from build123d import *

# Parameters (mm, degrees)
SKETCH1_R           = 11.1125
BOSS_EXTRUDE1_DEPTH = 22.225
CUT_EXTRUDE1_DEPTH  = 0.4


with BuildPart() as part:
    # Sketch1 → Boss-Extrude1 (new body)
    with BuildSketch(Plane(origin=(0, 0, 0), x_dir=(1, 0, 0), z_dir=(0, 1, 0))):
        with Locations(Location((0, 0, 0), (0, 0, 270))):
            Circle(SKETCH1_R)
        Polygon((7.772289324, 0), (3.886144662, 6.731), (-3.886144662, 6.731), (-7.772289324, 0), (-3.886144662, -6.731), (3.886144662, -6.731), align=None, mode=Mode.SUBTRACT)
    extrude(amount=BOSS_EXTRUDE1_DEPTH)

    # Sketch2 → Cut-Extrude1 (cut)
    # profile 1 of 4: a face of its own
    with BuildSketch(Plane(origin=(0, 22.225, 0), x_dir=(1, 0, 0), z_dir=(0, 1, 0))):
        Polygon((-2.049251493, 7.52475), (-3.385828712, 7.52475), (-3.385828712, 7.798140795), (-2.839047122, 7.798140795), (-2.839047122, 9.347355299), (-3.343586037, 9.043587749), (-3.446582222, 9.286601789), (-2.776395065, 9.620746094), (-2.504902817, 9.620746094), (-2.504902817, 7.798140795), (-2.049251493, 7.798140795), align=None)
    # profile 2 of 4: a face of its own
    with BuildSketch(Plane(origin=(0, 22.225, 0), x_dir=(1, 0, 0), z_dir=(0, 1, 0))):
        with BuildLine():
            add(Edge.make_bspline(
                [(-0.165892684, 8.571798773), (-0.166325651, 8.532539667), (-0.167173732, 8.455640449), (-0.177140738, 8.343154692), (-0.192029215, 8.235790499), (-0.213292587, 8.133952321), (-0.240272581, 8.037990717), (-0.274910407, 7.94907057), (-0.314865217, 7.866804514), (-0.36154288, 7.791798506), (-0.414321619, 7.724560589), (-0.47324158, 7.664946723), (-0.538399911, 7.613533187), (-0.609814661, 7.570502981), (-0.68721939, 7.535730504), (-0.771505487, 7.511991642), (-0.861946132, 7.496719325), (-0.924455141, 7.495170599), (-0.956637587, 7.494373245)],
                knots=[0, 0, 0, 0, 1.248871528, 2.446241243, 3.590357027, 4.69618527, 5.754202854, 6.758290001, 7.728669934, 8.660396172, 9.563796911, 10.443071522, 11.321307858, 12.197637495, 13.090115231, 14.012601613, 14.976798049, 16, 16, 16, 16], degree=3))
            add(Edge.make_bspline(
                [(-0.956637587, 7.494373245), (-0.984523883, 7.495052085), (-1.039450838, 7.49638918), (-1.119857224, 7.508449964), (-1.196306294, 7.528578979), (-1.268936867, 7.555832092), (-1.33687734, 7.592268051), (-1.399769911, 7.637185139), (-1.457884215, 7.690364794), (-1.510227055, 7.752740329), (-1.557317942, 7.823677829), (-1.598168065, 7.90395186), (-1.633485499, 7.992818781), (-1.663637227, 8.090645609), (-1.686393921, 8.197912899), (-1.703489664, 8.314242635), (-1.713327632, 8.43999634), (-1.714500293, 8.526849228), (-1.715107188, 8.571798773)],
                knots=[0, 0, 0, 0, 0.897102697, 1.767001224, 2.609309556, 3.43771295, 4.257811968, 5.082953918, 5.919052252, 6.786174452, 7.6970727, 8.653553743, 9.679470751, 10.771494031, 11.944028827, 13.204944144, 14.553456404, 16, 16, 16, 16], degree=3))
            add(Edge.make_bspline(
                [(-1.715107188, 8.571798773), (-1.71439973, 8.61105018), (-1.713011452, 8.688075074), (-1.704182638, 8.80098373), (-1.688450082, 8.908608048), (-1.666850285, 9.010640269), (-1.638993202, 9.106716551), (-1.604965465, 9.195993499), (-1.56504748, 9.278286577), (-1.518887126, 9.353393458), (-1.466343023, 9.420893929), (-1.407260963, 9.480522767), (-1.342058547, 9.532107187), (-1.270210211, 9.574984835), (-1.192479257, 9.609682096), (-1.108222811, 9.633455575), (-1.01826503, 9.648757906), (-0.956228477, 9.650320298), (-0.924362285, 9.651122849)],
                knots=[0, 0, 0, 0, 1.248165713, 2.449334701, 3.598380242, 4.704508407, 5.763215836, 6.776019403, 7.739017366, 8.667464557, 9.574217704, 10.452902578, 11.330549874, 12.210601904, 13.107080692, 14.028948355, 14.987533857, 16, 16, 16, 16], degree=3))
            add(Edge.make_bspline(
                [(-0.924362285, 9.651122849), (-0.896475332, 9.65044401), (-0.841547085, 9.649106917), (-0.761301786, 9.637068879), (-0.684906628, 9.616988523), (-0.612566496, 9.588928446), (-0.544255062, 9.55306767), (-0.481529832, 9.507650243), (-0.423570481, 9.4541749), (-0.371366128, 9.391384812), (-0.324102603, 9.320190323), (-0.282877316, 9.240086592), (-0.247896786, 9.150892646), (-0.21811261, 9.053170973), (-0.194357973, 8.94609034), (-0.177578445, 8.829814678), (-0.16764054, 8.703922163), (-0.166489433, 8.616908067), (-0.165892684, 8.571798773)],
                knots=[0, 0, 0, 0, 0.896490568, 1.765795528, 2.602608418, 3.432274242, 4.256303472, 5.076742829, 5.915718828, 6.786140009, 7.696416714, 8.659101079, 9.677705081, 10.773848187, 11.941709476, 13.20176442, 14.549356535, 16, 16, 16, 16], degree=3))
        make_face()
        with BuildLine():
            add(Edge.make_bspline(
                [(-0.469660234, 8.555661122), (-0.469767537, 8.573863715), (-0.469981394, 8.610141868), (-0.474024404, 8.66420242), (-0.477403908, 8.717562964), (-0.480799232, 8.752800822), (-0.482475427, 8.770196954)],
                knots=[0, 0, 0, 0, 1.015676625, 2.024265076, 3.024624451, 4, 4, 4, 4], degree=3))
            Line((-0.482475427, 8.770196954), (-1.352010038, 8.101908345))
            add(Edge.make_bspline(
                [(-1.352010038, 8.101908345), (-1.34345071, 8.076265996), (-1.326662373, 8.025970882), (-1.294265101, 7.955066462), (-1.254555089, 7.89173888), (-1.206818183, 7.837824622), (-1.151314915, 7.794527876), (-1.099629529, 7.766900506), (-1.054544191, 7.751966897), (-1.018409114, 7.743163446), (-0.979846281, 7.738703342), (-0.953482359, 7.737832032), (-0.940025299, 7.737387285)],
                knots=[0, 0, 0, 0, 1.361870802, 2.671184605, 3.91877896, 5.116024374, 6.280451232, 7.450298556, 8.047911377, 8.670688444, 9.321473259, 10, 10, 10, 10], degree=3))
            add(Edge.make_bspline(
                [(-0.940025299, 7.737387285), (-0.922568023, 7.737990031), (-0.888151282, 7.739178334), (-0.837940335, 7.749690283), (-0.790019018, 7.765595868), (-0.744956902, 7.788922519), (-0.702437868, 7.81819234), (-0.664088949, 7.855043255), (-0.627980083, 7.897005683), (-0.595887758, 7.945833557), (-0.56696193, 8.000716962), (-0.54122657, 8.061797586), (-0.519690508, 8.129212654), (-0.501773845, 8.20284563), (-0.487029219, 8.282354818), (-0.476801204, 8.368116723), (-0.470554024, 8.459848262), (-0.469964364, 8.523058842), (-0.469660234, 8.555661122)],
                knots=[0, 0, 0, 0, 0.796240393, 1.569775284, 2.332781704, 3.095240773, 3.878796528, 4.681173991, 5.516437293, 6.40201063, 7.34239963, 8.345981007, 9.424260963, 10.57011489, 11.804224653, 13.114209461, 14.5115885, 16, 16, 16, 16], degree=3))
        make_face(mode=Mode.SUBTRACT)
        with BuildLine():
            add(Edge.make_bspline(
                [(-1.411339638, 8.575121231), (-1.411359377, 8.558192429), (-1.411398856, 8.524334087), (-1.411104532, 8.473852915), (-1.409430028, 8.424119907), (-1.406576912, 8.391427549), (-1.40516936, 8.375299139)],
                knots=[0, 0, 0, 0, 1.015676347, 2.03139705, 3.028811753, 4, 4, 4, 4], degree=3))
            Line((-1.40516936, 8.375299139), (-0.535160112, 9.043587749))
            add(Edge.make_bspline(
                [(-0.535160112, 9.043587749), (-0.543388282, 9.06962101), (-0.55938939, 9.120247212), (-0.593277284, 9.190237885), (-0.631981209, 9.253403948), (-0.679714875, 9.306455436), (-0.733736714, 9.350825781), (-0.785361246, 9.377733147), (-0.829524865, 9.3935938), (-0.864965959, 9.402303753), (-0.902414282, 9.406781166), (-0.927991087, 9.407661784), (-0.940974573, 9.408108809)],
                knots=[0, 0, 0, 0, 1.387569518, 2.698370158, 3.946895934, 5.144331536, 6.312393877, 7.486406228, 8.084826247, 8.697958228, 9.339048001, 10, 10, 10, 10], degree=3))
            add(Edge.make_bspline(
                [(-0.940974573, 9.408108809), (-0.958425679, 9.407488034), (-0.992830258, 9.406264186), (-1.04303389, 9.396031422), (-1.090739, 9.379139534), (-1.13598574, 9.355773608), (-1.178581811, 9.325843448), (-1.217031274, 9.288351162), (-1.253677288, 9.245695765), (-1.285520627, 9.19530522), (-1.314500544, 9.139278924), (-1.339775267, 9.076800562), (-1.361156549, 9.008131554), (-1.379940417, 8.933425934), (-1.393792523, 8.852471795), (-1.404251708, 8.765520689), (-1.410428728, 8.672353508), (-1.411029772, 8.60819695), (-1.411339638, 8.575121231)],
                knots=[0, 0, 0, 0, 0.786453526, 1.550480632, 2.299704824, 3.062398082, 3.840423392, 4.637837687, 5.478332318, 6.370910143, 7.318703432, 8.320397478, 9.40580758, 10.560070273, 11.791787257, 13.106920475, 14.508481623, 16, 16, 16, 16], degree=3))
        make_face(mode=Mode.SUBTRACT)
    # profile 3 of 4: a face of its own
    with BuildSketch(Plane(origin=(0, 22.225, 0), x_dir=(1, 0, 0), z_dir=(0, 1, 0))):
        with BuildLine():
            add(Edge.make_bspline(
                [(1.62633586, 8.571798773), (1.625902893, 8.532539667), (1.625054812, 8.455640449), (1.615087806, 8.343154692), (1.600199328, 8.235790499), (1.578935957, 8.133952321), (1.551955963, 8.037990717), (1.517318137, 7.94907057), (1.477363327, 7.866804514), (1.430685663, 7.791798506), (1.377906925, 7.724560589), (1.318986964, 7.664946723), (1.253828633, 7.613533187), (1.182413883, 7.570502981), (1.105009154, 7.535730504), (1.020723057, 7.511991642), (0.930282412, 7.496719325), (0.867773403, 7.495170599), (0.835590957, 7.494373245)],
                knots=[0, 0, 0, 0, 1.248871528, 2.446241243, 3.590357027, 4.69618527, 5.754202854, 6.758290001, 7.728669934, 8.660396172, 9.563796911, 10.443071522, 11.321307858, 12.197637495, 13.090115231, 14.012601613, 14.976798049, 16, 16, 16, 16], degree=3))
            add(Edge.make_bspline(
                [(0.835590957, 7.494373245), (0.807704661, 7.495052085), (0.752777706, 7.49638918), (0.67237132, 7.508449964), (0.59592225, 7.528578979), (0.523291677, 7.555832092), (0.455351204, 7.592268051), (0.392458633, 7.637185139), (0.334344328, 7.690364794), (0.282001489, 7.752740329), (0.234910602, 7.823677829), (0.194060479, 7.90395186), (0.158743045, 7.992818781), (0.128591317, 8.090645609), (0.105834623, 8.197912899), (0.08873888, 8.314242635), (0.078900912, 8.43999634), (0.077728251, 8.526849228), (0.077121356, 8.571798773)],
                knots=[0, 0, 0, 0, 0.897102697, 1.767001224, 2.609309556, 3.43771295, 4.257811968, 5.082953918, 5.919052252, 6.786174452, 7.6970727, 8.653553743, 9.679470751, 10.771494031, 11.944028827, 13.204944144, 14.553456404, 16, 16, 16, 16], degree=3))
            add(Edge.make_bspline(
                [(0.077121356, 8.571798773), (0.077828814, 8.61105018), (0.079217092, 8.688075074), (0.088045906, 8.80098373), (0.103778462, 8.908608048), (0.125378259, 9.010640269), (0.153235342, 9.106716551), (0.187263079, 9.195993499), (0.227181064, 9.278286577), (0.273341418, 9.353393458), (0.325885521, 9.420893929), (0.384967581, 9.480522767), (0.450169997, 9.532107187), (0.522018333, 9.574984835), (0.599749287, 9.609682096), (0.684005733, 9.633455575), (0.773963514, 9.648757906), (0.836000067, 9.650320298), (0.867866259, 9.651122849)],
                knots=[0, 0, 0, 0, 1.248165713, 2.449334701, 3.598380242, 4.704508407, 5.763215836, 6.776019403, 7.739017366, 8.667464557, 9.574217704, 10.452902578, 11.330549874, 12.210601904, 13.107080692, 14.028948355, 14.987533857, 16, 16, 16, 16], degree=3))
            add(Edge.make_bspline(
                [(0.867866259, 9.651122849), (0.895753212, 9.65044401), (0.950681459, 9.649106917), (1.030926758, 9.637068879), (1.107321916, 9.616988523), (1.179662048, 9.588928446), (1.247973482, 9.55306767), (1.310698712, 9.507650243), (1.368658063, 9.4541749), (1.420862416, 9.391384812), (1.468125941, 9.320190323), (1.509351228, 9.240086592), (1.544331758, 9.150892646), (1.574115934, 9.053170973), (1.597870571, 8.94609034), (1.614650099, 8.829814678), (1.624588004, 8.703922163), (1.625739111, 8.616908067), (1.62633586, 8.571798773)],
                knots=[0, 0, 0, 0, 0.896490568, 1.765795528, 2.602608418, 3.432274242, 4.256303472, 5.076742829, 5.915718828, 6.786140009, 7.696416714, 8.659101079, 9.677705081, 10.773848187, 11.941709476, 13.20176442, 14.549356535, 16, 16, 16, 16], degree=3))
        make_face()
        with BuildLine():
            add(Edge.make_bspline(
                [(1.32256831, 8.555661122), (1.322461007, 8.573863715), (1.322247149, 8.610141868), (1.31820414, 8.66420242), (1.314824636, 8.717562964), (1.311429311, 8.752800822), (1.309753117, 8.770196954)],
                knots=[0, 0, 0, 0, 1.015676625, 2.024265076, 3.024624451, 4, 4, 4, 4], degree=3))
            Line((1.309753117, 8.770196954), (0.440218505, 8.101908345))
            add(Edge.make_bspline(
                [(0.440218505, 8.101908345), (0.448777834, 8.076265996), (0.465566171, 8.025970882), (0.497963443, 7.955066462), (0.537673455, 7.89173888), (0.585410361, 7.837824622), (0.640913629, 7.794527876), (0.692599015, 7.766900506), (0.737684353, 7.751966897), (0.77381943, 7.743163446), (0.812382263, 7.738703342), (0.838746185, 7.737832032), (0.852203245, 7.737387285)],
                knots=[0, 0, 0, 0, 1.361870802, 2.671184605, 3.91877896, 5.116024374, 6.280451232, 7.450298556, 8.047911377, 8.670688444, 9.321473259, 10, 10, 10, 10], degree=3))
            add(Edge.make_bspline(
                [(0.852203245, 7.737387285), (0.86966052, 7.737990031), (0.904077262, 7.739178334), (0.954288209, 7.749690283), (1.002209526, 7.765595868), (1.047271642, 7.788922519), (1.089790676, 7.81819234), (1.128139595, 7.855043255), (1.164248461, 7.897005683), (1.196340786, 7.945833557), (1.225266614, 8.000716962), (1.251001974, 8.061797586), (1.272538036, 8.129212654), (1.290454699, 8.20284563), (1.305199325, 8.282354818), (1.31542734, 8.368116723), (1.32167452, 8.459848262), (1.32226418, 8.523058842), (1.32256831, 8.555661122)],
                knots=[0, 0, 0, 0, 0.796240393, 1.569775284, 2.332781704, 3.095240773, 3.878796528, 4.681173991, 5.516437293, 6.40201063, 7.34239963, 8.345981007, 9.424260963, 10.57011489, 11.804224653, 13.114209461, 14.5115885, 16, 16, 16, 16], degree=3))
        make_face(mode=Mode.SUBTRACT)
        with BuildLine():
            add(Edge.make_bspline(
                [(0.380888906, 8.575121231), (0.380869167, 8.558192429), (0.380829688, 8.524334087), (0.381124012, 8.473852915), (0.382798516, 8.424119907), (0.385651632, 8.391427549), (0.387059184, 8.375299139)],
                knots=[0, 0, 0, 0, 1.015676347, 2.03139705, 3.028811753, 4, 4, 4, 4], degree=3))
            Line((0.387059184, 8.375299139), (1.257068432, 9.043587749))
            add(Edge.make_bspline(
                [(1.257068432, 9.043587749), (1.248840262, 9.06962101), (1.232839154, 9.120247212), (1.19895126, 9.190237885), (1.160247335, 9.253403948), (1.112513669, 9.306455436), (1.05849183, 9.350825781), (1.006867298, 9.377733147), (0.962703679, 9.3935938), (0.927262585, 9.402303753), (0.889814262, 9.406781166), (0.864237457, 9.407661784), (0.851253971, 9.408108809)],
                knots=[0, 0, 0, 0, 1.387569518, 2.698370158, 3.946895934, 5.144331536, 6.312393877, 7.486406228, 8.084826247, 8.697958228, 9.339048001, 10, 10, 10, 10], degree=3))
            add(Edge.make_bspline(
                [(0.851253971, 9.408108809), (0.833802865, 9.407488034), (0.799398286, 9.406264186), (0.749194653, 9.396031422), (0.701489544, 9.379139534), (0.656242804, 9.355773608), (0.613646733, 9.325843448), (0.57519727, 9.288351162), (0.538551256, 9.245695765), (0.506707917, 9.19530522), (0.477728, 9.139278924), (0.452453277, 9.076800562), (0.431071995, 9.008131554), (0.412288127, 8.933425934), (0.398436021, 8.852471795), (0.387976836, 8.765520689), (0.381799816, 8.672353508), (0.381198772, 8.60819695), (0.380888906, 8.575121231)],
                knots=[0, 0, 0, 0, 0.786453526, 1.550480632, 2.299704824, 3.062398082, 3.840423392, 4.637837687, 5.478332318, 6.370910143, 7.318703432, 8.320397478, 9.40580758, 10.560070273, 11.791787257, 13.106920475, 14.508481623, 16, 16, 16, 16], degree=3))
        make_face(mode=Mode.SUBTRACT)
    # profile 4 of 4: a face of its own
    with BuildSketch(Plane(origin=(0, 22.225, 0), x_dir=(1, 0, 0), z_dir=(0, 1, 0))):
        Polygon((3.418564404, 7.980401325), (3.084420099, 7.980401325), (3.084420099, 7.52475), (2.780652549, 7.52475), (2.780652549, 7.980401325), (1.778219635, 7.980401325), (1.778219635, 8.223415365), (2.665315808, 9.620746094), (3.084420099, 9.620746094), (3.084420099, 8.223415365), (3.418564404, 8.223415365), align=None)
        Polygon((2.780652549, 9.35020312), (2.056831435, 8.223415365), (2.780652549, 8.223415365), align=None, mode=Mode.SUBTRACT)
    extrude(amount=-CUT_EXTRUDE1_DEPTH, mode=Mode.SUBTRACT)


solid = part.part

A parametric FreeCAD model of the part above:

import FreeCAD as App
import Part
import Sketcher

V = App.Vector
Q = App.Units.Quantity


def add_polygon(sketch, points):
    """Adds a closed chain of lines whose ends are joined by coincident constraints."""
    first, n = sketch.GeometryCount, len(points)
    for a, b in zip(points, points[1:] + points[:1]):
        sketch.addGeometry(Part.LineSegment(App.Vector(*a, 0), App.Vector(*b, 0)), False)
    for i in range(n):
        sketch.addConstraint(Sketcher.Constraint("Coincident", first + i, 2, first + (i + 1) % n, 1))

doc = App.newDocument("Part")
body = doc.addObject("PartDesign::Body", "Body")

sketch1 = doc.addObject("Sketcher::SketchObject", "Sketch")
body.addObject(sketch1)
sketch1.AttachmentSupport = (doc.XZ_Plane, [""])
sketch1.MapMode = "FlatFace"
sketch1.addGeometry(Part.Circle(V(0, 0, 0), V(0, 0, 1), 11), False)
add_polygon(sketch1, [(4, -7), (8, 0), (4, 7), (-4, 7), (-8, 0), (-4, -7)])
sketch1.addConstraint(Sketcher.Constraint("Horizontal", 3))
sketch1.addConstraint(Sketcher.Constraint("Horizontal", 6))
sketch1.addConstraint(Sketcher.Constraint("Coincident", 0, 3, -1, 1))
sketch1.addConstraint(Sketcher.Constraint("Symmetric", 1, 2, 4, 2, -1, 1))
sketch1.addConstraint(Sketcher.Constraint("Symmetric", 2, 2, 5, 2, -1, 1))
sketch1.addConstraint(Sketcher.Constraint("PointOnObject", 1, 2, -1))
sketch1.addConstraint(Sketcher.Constraint("Parallel", 1, 4))
sketch1.addConstraint(Sketcher.Constraint("Vertical", 3, 2, 5, 2))
sketch1.addConstraint(Sketcher.Constraint("Angle", 1, Q("60 deg")))
sketch1.addConstraint(Sketcher.Constraint("Diameter", 0, 22.225))
sketch1.addConstraint(Sketcher.Constraint("DistanceY", -1, 1, 2, 2, 6.731))
sketch1.addConstraint(Sketcher.Constraint("DistanceX", 3, 2, 3, 1, 7.772289))
pad1 = doc.addObject("PartDesign::Pad", "Pad")
body.addObject(pad1)
pad1.Profile = sketch1
pad1.Length = 22.225
pad1.Reversed = True

sketch2 = doc.addObject("Sketcher::SketchObject", "Sketch001")
body.addObject(sketch2)
sketch2.AttachmentSupport = (doc.XZ_Plane, [""])
sketch2.MapMode = "FlatFace"
sketch2.AttachmentOffset = App.Placement(V(0, 0, -22.225), App.Rotation())
add_polygon(sketch2, [(-3.385829, -7.52475), (-2.049251, -7.52475), (-2.049251, -7.798141), (-2.504903, -7.798141), (-2.504903, -9.620746), (-2.776395, -9.620746), (-3.446582, -9.286602), (-3.343586, -9.043588), (-2.839047, -9.347355), (-2.839047, -7.798141), (-3.385829, -7.798141)])
sketch2.addGeometry(Part.BSplineCurve([V(-0.165893, -8.571799, 0), V(-0.166326, -8.53254, 0), V(-0.167174, -8.45564, 0), V(-0.177141, -8.343155, 0), V(-0.192029, -8.23579, 0), V(-0.213293, -8.133952, 0), V(-0.240273, -8.037991, 0), V(-0.27491, -7.949071, 0), V(-0.314865, -7.866805, 0), V(-0.361543, -7.791799, 0), V(-0.414322, -7.724561, 0), V(-0.473242, -7.664947, 0), V(-0.5384, -7.613533, 0), V(-0.609815, -7.570503, 0), V(-0.687219, -7.535731, 0), V(-0.771505, -7.511992, 0), V(-0.861946, -7.496719, 0), V(-0.924455, -7.495171, 0), V(-0.956638, -7.494373, 0)], [4, 1, 1, 1, 1, 1, 1, 1, 1, 1, 1, 1, 1, 1, 1, 1, 4], [0, 1.248871528, 2.446241243, 3.590357027, 4.69618527, 5.754202854, 6.758290001, 7.728669934, 8.660396172, 9.563796911, 10.443071522, 11.321307858, 12.197637495, 13.090115231, 14.012601613, 14.976798049, 16], False, 3, [1, 1, 1, 1, 1, 1, 1, 1, 1, 1, 1, 1, 1, 1, 1, 1, 1, 1, 1], False), False)
sketch2.addGeometry(Part.BSplineCurve([V(-0.924362, -9.651123, 0), V(-0.896475, -9.650444, 0), V(-0.841547, -9.649107, 0), V(-0.761302, -9.637069, 0), V(-0.684907, -9.616989, 0), V(-0.612566, -9.588928, 0), V(-0.544255, -9.553068, 0), V(-0.48153, -9.50765, 0), V(-0.42357, -9.454175, 0), V(-0.371366, -9.391385, 0), V(-0.324103, -9.32019, 0), V(-0.282877, -9.240087, 0), V(-0.247897, -9.150893, 0), V(-0.218113, -9.053171, 0), V(-0.194358, -8.94609, 0), V(-0.177578, -8.829815, 0), V(-0.167641, -8.703922, 0), V(-0.166489, -8.616908, 0), V(-0.165893, -8.571799, 0)], [4, 1, 1, 1, 1, 1, 1, 1, 1, 1, 1, 1, 1, 1, 1, 1, 4], [0, 0.896490568, 1.765795528, 2.602608418, 3.432274242, 4.256303472, 5.076742829, 5.915718828, 6.786140009, 7.696416714, 8.659101079, 9.677705081, 10.773848187, 11.941709476, 13.20176442, 14.549356535, 16], False, 3, [1, 1, 1, 1, 1, 1, 1, 1, 1, 1, 1, 1, 1, 1, 1, 1, 1, 1, 1], False), False)
sketch2.addGeometry(Part.BSplineCurve([V(-1.715107, -8.571799, 0), V(-1.7144, -8.61105, 0), V(-1.713011, -8.688075, 0), V(-1.704183, -8.800984, 0), V(-1.68845, -8.908608, 0), V(-1.66685, -9.01064, 0), V(-1.638993, -9.106717, 0), V(-1.604965, -9.195993, 0), V(-1.565047, -9.278287, 0), V(-1.518887, -9.353393, 0), V(-1.466343, -9.420894, 0), V(-1.407261, -9.480523, 0), V(-1.342059, -9.532107, 0), V(-1.27021, -9.574985, 0), V(-1.192479, -9.609682, 0), V(-1.108223, -9.633456, 0), V(-1.018265, -9.648758, 0), V(-0.956228, -9.65032, 0), V(-0.924362, -9.651123, 0)], [4, 1, 1, 1, 1, 1, 1, 1, 1, 1, 1, 1, 1, 1, 1, 1, 4], [0, 1.248165713, 2.449334701, 3.598380242, 4.704508407, 5.763215836, 6.776019403, 7.739017366, 8.667464557, 9.574217704, 10.452902578, 11.330549874, 12.210601904, 13.107080692, 14.028948355, 14.987533857, 16], False, 3, [1, 1, 1, 1, 1, 1, 1, 1, 1, 1, 1, 1, 1, 1, 1, 1, 1, 1, 1], False), False)
sketch2.addGeometry(Part.BSplineCurve([V(-0.956638, -7.494373, 0), V(-0.984524, -7.495052, 0), V(-1.039451, -7.496389, 0), V(-1.119857, -7.50845, 0), V(-1.196306, -7.528579, 0), V(-1.268937, -7.555832, 0), V(-1.336877, -7.592268, 0), V(-1.39977, -7.637185, 0), V(-1.457884, -7.690365, 0), V(-1.510227, -7.75274, 0), V(-1.557318, -7.823678, 0), V(-1.598168, -7.903952, 0), V(-1.633485, -7.992819, 0), V(-1.663637, -8.090646, 0), V(-1.686394, -8.197913, 0), V(-1.70349, -8.314243, 0), V(-1.713328, -8.439996, 0), V(-1.7145, -8.526849, 0), V(-1.715107, -8.571799, 0)], [4, 1, 1, 1, 1, 1, 1, 1, 1, 1, 1, 1, 1, 1, 1, 1, 4], [0, 0.897102697, 1.767001224, 2.609309556, 3.43771295, 4.257811968, 5.082953918, 5.919052252, 6.786174452, 7.6970727, 8.653553743, 9.679470751, 10.771494031, 11.944028827, 13.204944144, 14.553456404, 16], False, 3, [1, 1, 1, 1, 1, 1, 1, 1, 1, 1, 1, 1, 1, 1, 1, 1, 1, 1, 1], False), False)
sketch2.addGeometry(Part.BSplineCurve([V(-0.940025, -7.737387, 0), V(-0.922568, -7.73799, 0), V(-0.888151, -7.739178, 0), V(-0.83794, -7.74969, 0), V(-0.790019, -7.765596, 0), V(-0.744957, -7.788923, 0), V(-0.702438, -7.818192, 0), V(-0.664089, -7.855043, 0), V(-0.62798, -7.897006, 0), V(-0.595888, -7.945834, 0), V(-0.566962, -8.000717, 0), V(-0.541227, -8.061798, 0), V(-0.519691, -8.129213, 0), V(-0.501774, -8.202846, 0), V(-0.487029, -8.282355, 0), V(-0.476801, -8.368117, 0), V(-0.470554, -8.459848, 0), V(-0.469964, -8.523059, 0), V(-0.46966, -8.555661, 0)], [4, 1, 1, 1, 1, 1, 1, 1, 1, 1, 1, 1, 1, 1, 1, 1, 4], [0, 0.796240393, 1.569775284, 2.332781704, 3.095240773, 3.878796528, 4.681173991, 5.516437293, 6.40201063, 7.34239963, 8.345981007, 9.424260963, 10.57011489, 11.804224653, 13.114209461, 14.5115885, 16], False, 3, [1, 1, 1, 1, 1, 1, 1, 1, 1, 1, 1, 1, 1, 1, 1, 1, 1, 1, 1], False), False)
sketch2.addGeometry(Part.BSplineCurve([V(-1.35201, -8.101908, 0), V(-1.343451, -8.076266, 0), V(-1.326662, -8.025971, 0), V(-1.294265, -7.955066, 0), V(-1.254555, -7.891739, 0), V(-1.206818, -7.837825, 0), V(-1.151315, -7.794528, 0), V(-1.09963, -7.766901, 0), V(-1.054544, -7.751967, 0), V(-1.018409, -7.743163, 0), V(-0.979846, -7.738703, 0), V(-0.953482, -7.737832, 0), V(-0.940025, -7.737387, 0)], [4, 1, 1, 1, 1, 1, 1, 1, 1, 1, 4], [0, 1.361870802, 2.671184605, 3.91877896, 5.116024374, 6.280451232, 7.450298556, 8.047911377, 8.670688444, 9.321473259, 10], False, 3, [1, 1, 1, 1, 1, 1, 1, 1, 1, 1, 1, 1, 1], False), False)
sketch2.addGeometry(Part.LineSegment(V(-1.35201, -8.101908, 0), V(-0.482475, -8.770197, 0)), False)
sketch2.addGeometry(Part.BSplineCurve([V(-0.46966, -8.555661, 0), V(-0.469768, -8.573864, 0), V(-0.469981, -8.610142, 0), V(-0.474024, -8.664202, 0), V(-0.477404, -8.717563, 0), V(-0.480799, -8.752801, 0), V(-0.482475, -8.770197, 0)], [4, 1, 1, 1, 4], [0, 1.015676625, 2.024265076, 3.024624451, 4], False, 3, [1, 1, 1, 1, 1, 1, 1], False), False)
sketch2.addGeometry(Part.BSplineCurve([V(-0.940975, -9.408109, 0), V(-0.958426, -9.407488, 0), V(-0.99283, -9.406264, 0), V(-1.043034, -9.396031, 0), V(-1.090739, -9.37914, 0), V(-1.135986, -9.355774, 0), V(-1.178582, -9.325843, 0), V(-1.217031, -9.288351, 0), V(-1.253677, -9.245696, 0), V(-1.285521, -9.195305, 0), V(-1.314501, -9.139279, 0), V(-1.339775, -9.076801, 0), V(-1.361157, -9.008132, 0), V(-1.37994, -8.933426, 0), V(-1.393793, -8.852472, 0), V(-1.404252, -8.765521, 0), V(-1.410429, -8.672354, 0), V(-1.41103, -8.608197, 0), V(-1.41134, -8.575121, 0)], [4, 1, 1, 1, 1, 1, 1, 1, 1, 1, 1, 1, 1, 1, 1, 1, 4], [0, 0.786453526, 1.550480632, 2.299704824, 3.062398082, 3.840423392, 4.637837687, 5.478332318, 6.370910143, 7.318703432, 8.320397478, 9.40580758, 10.560070273, 11.791787257, 13.106920475, 14.508481623, 16], False, 3, [1, 1, 1, 1, 1, 1, 1, 1, 1, 1, 1, 1, 1, 1, 1, 1, 1, 1, 1], False), False)
sketch2.addGeometry(Part.BSplineCurve([V(-0.53516, -9.043588, 0), V(-0.543388, -9.069621, 0), V(-0.559389, -9.120247, 0), V(-0.593277, -9.190238, 0), V(-0.631981, -9.253404, 0), V(-0.679715, -9.306455, 0), V(-0.733737, -9.350826, 0), V(-0.785361, -9.377733, 0), V(-0.829525, -9.393594, 0), V(-0.864966, -9.402304, 0), V(-0.902414, -9.406781, 0), V(-0.927991, -9.407662, 0), V(-0.940975, -9.408109, 0)], [4, 1, 1, 1, 1, 1, 1, 1, 1, 1, 4], [0, 1.387569518, 2.698370158, 3.946895934, 5.144331536, 6.312393877, 7.486406228, 8.084826247, 8.697958228, 9.339048001, 10], False, 3, [1, 1, 1, 1, 1, 1, 1, 1, 1, 1, 1, 1, 1], False), False)
sketch2.addGeometry(Part.LineSegment(V(-0.53516, -9.043588, 0), V(-1.405169, -8.375299, 0)), False)
sketch2.addGeometry(Part.BSplineCurve([V(-1.41134, -8.575121, 0), V(-1.411359, -8.558192, 0), V(-1.411399, -8.524334, 0), V(-1.411105, -8.473853, 0), V(-1.40943, -8.42412, 0), V(-1.406577, -8.391428, 0), V(-1.405169, -8.375299, 0)], [4, 1, 1, 1, 4], [0, 1.015676347, 2.03139705, 3.028811753, 4], False, 3, [1, 1, 1, 1, 1, 1, 1], False), False)
sketch2.addGeometry(Part.BSplineCurve([V(1.626336, -8.571799, 0), V(1.625903, -8.53254, 0), V(1.625055, -8.45564, 0), V(1.615088, -8.343155, 0), V(1.600199, -8.23579, 0), V(1.578936, -8.133952, 0), V(1.551956, -8.037991, 0), V(1.517318, -7.949071, 0), V(1.477363, -7.866805, 0), V(1.430686, -7.791799, 0), V(1.377907, -7.724561, 0), V(1.318987, -7.664947, 0), V(1.253829, -7.613533, 0), V(1.182414, -7.570503, 0), V(1.105009, -7.535731, 0), V(1.020723, -7.511992, 0), V(0.930282, -7.496719, 0), V(0.867773, -7.495171, 0), V(0.835591, -7.494373, 0)], [4, 1, 1, 1, 1, 1, 1, 1, 1, 1, 1, 1, 1, 1, 1, 1, 4], [0, 1.248871528, 2.446241243, 3.590357027, 4.69618527, 5.754202854, 6.758290001, 7.728669934, 8.660396172, 9.563796911, 10.443071522, 11.321307858, 12.197637495, 13.090115231, 14.012601613, 14.976798049, 16], False, 3, [1, 1, 1, 1, 1, 1, 1, 1, 1, 1, 1, 1, 1, 1, 1, 1, 1, 1, 1], False), False)
sketch2.addGeometry(Part.BSplineCurve([V(0.867866, -9.651123, 0), V(0.895753, -9.650444, 0), V(0.950681, -9.649107, 0), V(1.030927, -9.637069, 0), V(1.107322, -9.616989, 0), V(1.179662, -9.588928, 0), V(1.247973, -9.553068, 0), V(1.310699, -9.50765, 0), V(1.368658, -9.454175, 0), V(1.420862, -9.391385, 0), V(1.468126, -9.32019, 0), V(1.509351, -9.240087, 0), V(1.544332, -9.150893, 0), V(1.574116, -9.053171, 0), V(1.597871, -8.94609, 0), V(1.61465, -8.829815, 0), V(1.624588, -8.703922, 0), V(1.625739, -8.616908, 0), V(1.626336, -8.571799, 0)], [4, 1, 1, 1, 1, 1, 1, 1, 1, 1, 1, 1, 1, 1, 1, 1, 4], [0, 0.896490568, 1.765795528, 2.602608418, 3.432274242, 4.256303472, 5.076742829, 5.915718828, 6.786140009, 7.696416714, 8.659101079, 9.677705081, 10.773848187, 11.941709476, 13.20176442, 14.549356535, 16], False, 3, [1, 1, 1, 1, 1, 1, 1, 1, 1, 1, 1, 1, 1, 1, 1, 1, 1, 1, 1], False), False)
sketch2.addGeometry(Part.BSplineCurve([V(0.077121, -8.571799, 0), V(0.077829, -8.61105, 0), V(0.079217, -8.688075, 0), V(0.088046, -8.800984, 0), V(0.103778, -8.908608, 0), V(0.125378, -9.01064, 0), V(0.153235, -9.106717, 0), V(0.187263, -9.195993, 0), V(0.227181, -9.278287, 0), V(0.273341, -9.353393, 0), V(0.325886, -9.420894, 0), V(0.384968, -9.480523, 0), V(0.45017, -9.532107, 0), V(0.522018, -9.574985, 0), V(0.599749, -9.609682, 0), V(0.684006, -9.633456, 0), V(0.773964, -9.648758, 0), V(0.836, -9.65032, 0), V(0.867866, -9.651123, 0)], [4, 1, 1, 1, 1, 1, 1, 1, 1, 1, 1, 1, 1, 1, 1, 1, 4], [0, 1.248165713, 2.449334701, 3.598380242, 4.704508407, 5.763215836, 6.776019403, 7.739017366, 8.667464557, 9.574217704, 10.452902578, 11.330549874, 12.210601904, 13.107080692, 14.028948355, 14.987533857, 16], False, 3, [1, 1, 1, 1, 1, 1, 1, 1, 1, 1, 1, 1, 1, 1, 1, 1, 1, 1, 1], False), False)
sketch2.addGeometry(Part.BSplineCurve([V(0.835591, -7.494373, 0), V(0.807705, -7.495052, 0), V(0.752778, -7.496389, 0), V(0.672371, -7.50845, 0), V(0.595922, -7.528579, 0), V(0.523292, -7.555832, 0), V(0.455351, -7.592268, 0), V(0.392459, -7.637185, 0), V(0.334344, -7.690365, 0), V(0.282001, -7.75274, 0), V(0.234911, -7.823678, 0), V(0.19406, -7.903952, 0), V(0.158743, -7.992819, 0), V(0.128591, -8.090646, 0), V(0.105835, -8.197913, 0), V(0.088739, -8.314243, 0), V(0.078901, -8.439996, 0), V(0.077728, -8.526849, 0), V(0.077121, -8.571799, 0)], [4, 1, 1, 1, 1, 1, 1, 1, 1, 1, 1, 1, 1, 1, 1, 1, 4], [0, 0.897102697, 1.767001224, 2.609309556, 3.43771295, 4.257811968, 5.082953918, 5.919052252, 6.786174452, 7.6970727, 8.653553743, 9.679470751, 10.771494031, 11.944028827, 13.204944144, 14.553456404, 16], False, 3, [1, 1, 1, 1, 1, 1, 1, 1, 1, 1, 1, 1, 1, 1, 1, 1, 1, 1, 1], False), False)
sketch2.addGeometry(Part.BSplineCurve([V(0.852203, -7.737387, 0), V(0.869661, -7.73799, 0), V(0.904077, -7.739178, 0), V(0.954288, -7.74969, 0), V(1.00221, -7.765596, 0), V(1.047272, -7.788923, 0), V(1.089791, -7.818192, 0), V(1.12814, -7.855043, 0), V(1.164248, -7.897006, 0), V(1.196341, -7.945834, 0), V(1.225267, -8.000717, 0), V(1.251002, -8.061798, 0), V(1.272538, -8.129213, 0), V(1.290455, -8.202846, 0), V(1.305199, -8.282355, 0), V(1.315427, -8.368117, 0), V(1.321675, -8.459848, 0), V(1.322264, -8.523059, 0), V(1.322568, -8.555661, 0)], [4, 1, 1, 1, 1, 1, 1, 1, 1, 1, 1, 1, 1, 1, 1, 1, 4], [0, 0.796240393, 1.569775284, 2.332781704, 3.095240773, 3.878796528, 4.681173991, 5.516437293, 6.40201063, 7.34239963, 8.345981007, 9.424260963, 10.57011489, 11.804224653, 13.114209461, 14.5115885, 16], False, 3, [1, 1, 1, 1, 1, 1, 1, 1, 1, 1, 1, 1, 1, 1, 1, 1, 1, 1, 1], False), False)
sketch2.addGeometry(Part.BSplineCurve([V(0.440219, -8.101908, 0), V(0.448778, -8.076266, 0), V(0.465566, -8.025971, 0), V(0.497963, -7.955066, 0), V(0.537673, -7.891739, 0), V(0.58541, -7.837825, 0), V(0.640914, -7.794528, 0), V(0.692599, -7.766901, 0), V(0.737684, -7.751967, 0), V(0.773819, -7.743163, 0), V(0.812382, -7.738703, 0), V(0.838746, -7.737832, 0), V(0.852203, -7.737387, 0)], [4, 1, 1, 1, 1, 1, 1, 1, 1, 1, 4], [0, 1.361870802, 2.671184605, 3.91877896, 5.116024374, 6.280451232, 7.450298556, 8.047911377, 8.670688444, 9.321473259, 10], False, 3, [1, 1, 1, 1, 1, 1, 1, 1, 1, 1, 1, 1, 1], False), False)
sketch2.addGeometry(Part.LineSegment(V(0.440219, -8.101908, 0), V(1.309753, -8.770197, 0)), False)
sketch2.addGeometry(Part.BSplineCurve([V(1.322568, -8.555661, 0), V(1.322461, -8.573864, 0), V(1.322247, -8.610142, 0), V(1.318204, -8.664202, 0), V(1.314825, -8.717563, 0), V(1.311429, -8.752801, 0), V(1.309753, -8.770197, 0)], [4, 1, 1, 1, 4], [0, 1.015676625, 2.024265076, 3.024624451, 4], False, 3, [1, 1, 1, 1, 1, 1, 1], False), False)
sketch2.addGeometry(Part.BSplineCurve([V(0.851254, -9.408109, 0), V(0.833803, -9.407488, 0), V(0.799398, -9.406264, 0), V(0.749195, -9.396031, 0), V(0.70149, -9.37914, 0), V(0.656243, -9.355774, 0), V(0.613647, -9.325843, 0), V(0.575197, -9.288351, 0), V(0.538551, -9.245696, 0), V(0.506708, -9.195305, 0), V(0.477728, -9.139279, 0), V(0.452453, -9.076801, 0), V(0.431072, -9.008132, 0), V(0.412288, -8.933426, 0), V(0.398436, -8.852472, 0), V(0.387977, -8.765521, 0), V(0.3818, -8.672354, 0), V(0.381199, -8.608197, 0), V(0.380889, -8.575121, 0)], [4, 1, 1, 1, 1, 1, 1, 1, 1, 1, 1, 1, 1, 1, 1, 1, 4], [0, 0.786453526, 1.550480632, 2.299704824, 3.062398082, 3.840423392, 4.637837687, 5.478332318, 6.370910143, 7.318703432, 8.320397478, 9.40580758, 10.560070273, 11.791787257, 13.106920475, 14.508481623, 16], False, 3, [1, 1, 1, 1, 1, 1, 1, 1, 1, 1, 1, 1, 1, 1, 1, 1, 1, 1, 1], False), False)
sketch2.addGeometry(Part.BSplineCurve([V(1.257068, -9.043588, 0), V(1.24884, -9.069621, 0), V(1.232839, -9.120247, 0), V(1.198951, -9.190238, 0), V(1.160247, -9.253404, 0), V(1.112514, -9.306455, 0), V(1.058492, -9.350826, 0), V(1.006867, -9.377733, 0), V(0.962704, -9.393594, 0), V(0.927263, -9.402304, 0), V(0.889814, -9.406781, 0), V(0.864237, -9.407662, 0), V(0.851254, -9.408109, 0)], [4, 1, 1, 1, 1, 1, 1, 1, 1, 1, 4], [0, 1.387569518, 2.698370158, 3.946895934, 5.144331536, 6.312393877, 7.486406228, 8.084826247, 8.697958228, 9.339048001, 10], False, 3, [1, 1, 1, 1, 1, 1, 1, 1, 1, 1, 1, 1, 1], False), False)
sketch2.addGeometry(Part.LineSegment(V(1.257068, -9.043588, 0), V(0.387059, -8.375299, 0)), False)
sketch2.addGeometry(Part.BSplineCurve([V(0.380889, -8.575121, 0), V(0.380869, -8.558192, 0), V(0.38083, -8.524334, 0), V(0.381124, -8.473853, 0), V(0.382799, -8.42412, 0), V(0.385652, -8.391428, 0), V(0.387059, -8.375299, 0)], [4, 1, 1, 1, 4], [0, 1.015676347, 2.03139705, 3.028811753, 4], False, 3, [1, 1, 1, 1, 1, 1, 1], False), False)
add_polygon(sketch2, [(3.08442, -7.980401), (3.418564, -7.980401), (3.418564, -8.223415), (3.08442, -8.223415), (3.08442, -9.620746), (2.665316, -9.620746), (1.77822, -8.223415), (1.77822, -7.980401), (2.780653, -7.980401), (2.780653, -7.52475), (3.08442, -7.52475)])
add_polygon(sketch2, [(2.780653, -9.350203), (2.780653, -8.223415), (2.056831, -8.223415)])
sketch2.addConstraint(Sketcher.Constraint("Block", 11))
sketch2.addConstraint(Sketcher.Constraint("Block", 12))
sketch2.addConstraint(Sketcher.Constraint("Block", 13))
sketch2.addConstraint(Sketcher.Constraint("Block", 14))
sketch2.addConstraint(Sketcher.Constraint("Block", 15))
sketch2.addConstraint(Sketcher.Constraint("Block", 16))
sketch2.addConstraint(Sketcher.Constraint("Block", 18))
sketch2.addConstraint(Sketcher.Constraint("Block", 19))
sketch2.addConstraint(Sketcher.Constraint("Block", 20))
sketch2.addConstraint(Sketcher.Constraint("Block", 22))
sketch2.addConstraint(Sketcher.Constraint("Block", 23))
sketch2.addConstraint(Sketcher.Constraint("Block", 24))
sketch2.addConstraint(Sketcher.Constraint("Block", 25))
sketch2.addConstraint(Sketcher.Constraint("Block", 26))
sketch2.addConstraint(Sketcher.Constraint("Block", 27))
sketch2.addConstraint(Sketcher.Constraint("Block", 28))
sketch2.addConstraint(Sketcher.Constraint("Block", 30))
sketch2.addConstraint(Sketcher.Constraint("Block", 31))
sketch2.addConstraint(Sketcher.Constraint("Block", 32))
sketch2.addConstraint(Sketcher.Constraint("Block", 34))
sketch2.addConstraint(Sketcher.Constraint("Coincident", 16, 1, 17, 1))
sketch2.addConstraint(Sketcher.Constraint("Coincident", 17, 2, 18, 2))
sketch2.addConstraint(Sketcher.Constraint("Coincident", 20, 1, 21, 1))
sketch2.addConstraint(Sketcher.Constraint("Coincident", 21, 2, 22, 2))
sketch2.addConstraint(Sketcher.Constraint("Coincident", 28, 1, 29, 1))
sketch2.addConstraint(Sketcher.Constraint("Coincident", 29, 2, 30, 2))
sketch2.addConstraint(Sketcher.Constraint("Coincident", 32, 1, 33, 1))
sketch2.addConstraint(Sketcher.Constraint("Coincident", 33, 2, 34, 2))
sketch2.addConstraint(Sketcher.Constraint("Horizontal", 0))
sketch2.addConstraint(Sketcher.Constraint("Vertical", 1))
sketch2.addConstraint(Sketcher.Constraint("Horizontal", 2))
sketch2.addConstraint(Sketcher.Constraint("Vertical", 3))
sketch2.addConstraint(Sketcher.Constraint("Horizontal", 4))
sketch2.addConstraint(Sketcher.Constraint("Vertical", 8))
sketch2.addConstraint(Sketcher.Constraint("Horizontal", 9))
sketch2.addConstraint(Sketcher.Constraint("Vertical", 10))
sketch2.addConstraint(Sketcher.Constraint("Horizontal", 35))
sketch2.addConstraint(Sketcher.Constraint("Vertical", 36))
sketch2.addConstraint(Sketcher.Constraint("Horizontal", 37))
sketch2.addConstraint(Sketcher.Constraint("Vertical", 38))
sketch2.addConstraint(Sketcher.Constraint("Horizontal", 39))
sketch2.addConstraint(Sketcher.Constraint("Vertical", 41))
sketch2.addConstraint(Sketcher.Constraint("Horizontal", 42))
sketch2.addConstraint(Sketcher.Constraint("Vertical", 43))
sketch2.addConstraint(Sketcher.Constraint("Horizontal", 44))
sketch2.addConstraint(Sketcher.Constraint("Vertical", 45))
sketch2.addConstraint(Sketcher.Constraint("Vertical", 46))
sketch2.addConstraint(Sketcher.Constraint("Horizontal", 47))
sketch2.addConstraint(Sketcher.Constraint("Horizontal", 2, 2, 8, 2))
sketch2.addConstraint(Sketcher.Constraint("Horizontal", 4, 2, 38, 2))
sketch2.addConstraint(Sketcher.Constraint("Horizontal", 37, 2, 40, 2))
sketch2.addConstraint(Sketcher.Constraint("Horizontal", 35, 2, 41, 2))
sketch2.addConstraint(Sketcher.Constraint("Horizontal", 10, 2, 43, 2))
sketch2.addConstraint(Sketcher.Constraint("Horizontal", 40, 2, 46, 2))
sketch2.addConstraint(Sketcher.Constraint("Vertical", 38, 2, 44, 2))
sketch2.addConstraint(Sketcher.Constraint("Vertical", 43, 2, 46, 2))
sketch2.addConstraint(Sketcher.Constraint("Equal", 2, 43))
sketch2.addConstraint(Sketcher.Constraint("DistanceX", 2, 2, 2, 1, 0.455651))
sketch2.addConstraint(Sketcher.Constraint("DistanceX", 9, 2, 9, 1, 0.546782))
sketch2.addConstraint(Sketcher.Constraint("DistanceX", 47, 2, 47, 1, 0.723821))
sketch2.addConstraint(Sketcher.Constraint("DistanceY", 1, 2, 1, 1, 0.273391))
sketch2.addConstraint(Sketcher.Constraint("DistanceY", 38, 2, 38, 1, 1.397331))
sketch2.addConstraint(Sketcher.Constraint("DistanceY", 5, 2, -1, 1, 9.286602))
sketch2.addConstraint(Sketcher.Constraint("DistanceY", 35, 2, -1, 1, 7.980401))
sketch2.addConstraint(Sketcher.Constraint("DistanceX", 40, 2, 37, 2, 1.3062))
sketch2.addConstraint(Sketcher.Constraint("Distance", 6, 0.263939))
sketch2.addConstraint(Sketcher.Constraint("Distance", 48, 1.339241))
sketch2.addConstraint(Sketcher.Constraint("DistanceX", 0, 1, 0, 2, 1.336577))
sketch2.addConstraint(Sketcher.Constraint("DistanceX", 4, 2, 4, 1, 0.271492))
sketch2.addConstraint(Sketcher.Constraint("DistanceX", 35, 1, 35, 2, 0.334144))
sketch2.addConstraint(Sketcher.Constraint("DistanceX", 39, 2, 39, 1, 0.419104))
sketch2.addConstraint(Sketcher.Constraint("DistanceX", 42, 1, 42, 2, 1.002433))
sketch2.addConstraint(Sketcher.Constraint("DistanceY", 3, 2, 3, 1, 1.822605))
sketch2.addConstraint(Sketcher.Constraint("DistanceY", 8, 1, 8, 2, 1.549215))
sketch2.addConstraint(Sketcher.Constraint("DistanceX", 0, 2, -1, 1, 2.049251))
sketch2.addConstraint(Sketcher.Constraint("DistanceX", -1, 1, 37, 2, 3.08442))
sketch2.addConstraint(Sketcher.Constraint("DistanceX", 5, 2, 3, 2, 0.941679))
sketch2.addConstraint(Sketcher.Constraint("DistanceX", 6, 2, 4, 2, 0.567191))
pocket1 = doc.addObject("PartDesign::Pocket", "Pocket")
body.addObject(pocket1)
pocket1.Profile = sketch2
pocket1.Length = 0.4
pocket1.Reversed = True

doc.recompute()
